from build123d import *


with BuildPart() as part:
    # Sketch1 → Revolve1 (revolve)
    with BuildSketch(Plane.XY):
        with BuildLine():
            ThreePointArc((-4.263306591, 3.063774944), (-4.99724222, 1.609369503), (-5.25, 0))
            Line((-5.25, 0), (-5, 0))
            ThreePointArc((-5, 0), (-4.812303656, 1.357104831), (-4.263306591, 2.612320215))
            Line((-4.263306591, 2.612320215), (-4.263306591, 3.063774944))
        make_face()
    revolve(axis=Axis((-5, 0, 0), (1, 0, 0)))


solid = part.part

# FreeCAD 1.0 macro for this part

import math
import FreeCAD as App
import Part
import Sketcher
from FreeCAD import Vector
Q = App.Units.Quantity

doc = App.newDocument("Part")
body = doc.addObject("PartDesign::Body", "Body")

# Sketch on XY plane
sketch1 = doc.addObject("Sketcher::SketchObject", "Sketch")
body.addObject(sketch1)
sketch1.AttachmentSupport = (doc.XY_Plane, [""])
sketch1.MapMode = "FlatFace"
sketch1.addGeometry([
    Part.ArcOfCircle(Part.Circle(Vector(0, 0, 0), Vector(0, 0, 1), 5.25), math.radians(144.297533), math.radians(180)),
    Part.LineSegment(Vector(-5.25, 0, 0), Vector(-5, 0, 0)),
    Part.ArcOfCircle(Part.Circle(Vector(0, 0, 0), Vector(0, 0, 1), 5), math.radians(148.50232), math.radians(180)),
    Part.LineSegment(Vector(-4.263307, 2.61232, 0), Vector(-4.263307, 3.063775, 0)),
], False)
sketch1.addConstraint([
    Sketcher.Constraint("Coincident", 0, 2, 1, 1),
    Sketcher.Constraint("Coincident", 1, 2, 2, 2),
    Sketcher.Constraint("Coincident", 2, 1, 3, 1),
    Sketcher.Constraint("Coincident", 3, 2, 0, 1),
    Sketcher.Constraint("Horizontal", 1),
    Sketcher.Constraint("Vertical", 3),
    Sketcher.Constraint("Coincident", 0, 3, -1, 1),
    Sketcher.Constraint("Coincident", 2, 3, -1, 1),
    Sketcher.Constraint("PointOnObject", 0, 2, -1),
    Sketcher.Constraint("Radius", 2, Q("5 mm")),
    Sketcher.Constraint("Radius", 0, Q("5.25 mm")),
    Sketcher.Constraint("DistanceY", 3, 1, 3, 2, Q("0.451455 mm")),
])
revolution = doc.addObject("PartDesign::Revolution", "Revolution")
body.addObject(revolution)
revolution.Profile = sketch1
revolution.ReferenceAxis = (sketch1, ["H_Axis"])
revolution.Angle = 360

doc.recompute()
